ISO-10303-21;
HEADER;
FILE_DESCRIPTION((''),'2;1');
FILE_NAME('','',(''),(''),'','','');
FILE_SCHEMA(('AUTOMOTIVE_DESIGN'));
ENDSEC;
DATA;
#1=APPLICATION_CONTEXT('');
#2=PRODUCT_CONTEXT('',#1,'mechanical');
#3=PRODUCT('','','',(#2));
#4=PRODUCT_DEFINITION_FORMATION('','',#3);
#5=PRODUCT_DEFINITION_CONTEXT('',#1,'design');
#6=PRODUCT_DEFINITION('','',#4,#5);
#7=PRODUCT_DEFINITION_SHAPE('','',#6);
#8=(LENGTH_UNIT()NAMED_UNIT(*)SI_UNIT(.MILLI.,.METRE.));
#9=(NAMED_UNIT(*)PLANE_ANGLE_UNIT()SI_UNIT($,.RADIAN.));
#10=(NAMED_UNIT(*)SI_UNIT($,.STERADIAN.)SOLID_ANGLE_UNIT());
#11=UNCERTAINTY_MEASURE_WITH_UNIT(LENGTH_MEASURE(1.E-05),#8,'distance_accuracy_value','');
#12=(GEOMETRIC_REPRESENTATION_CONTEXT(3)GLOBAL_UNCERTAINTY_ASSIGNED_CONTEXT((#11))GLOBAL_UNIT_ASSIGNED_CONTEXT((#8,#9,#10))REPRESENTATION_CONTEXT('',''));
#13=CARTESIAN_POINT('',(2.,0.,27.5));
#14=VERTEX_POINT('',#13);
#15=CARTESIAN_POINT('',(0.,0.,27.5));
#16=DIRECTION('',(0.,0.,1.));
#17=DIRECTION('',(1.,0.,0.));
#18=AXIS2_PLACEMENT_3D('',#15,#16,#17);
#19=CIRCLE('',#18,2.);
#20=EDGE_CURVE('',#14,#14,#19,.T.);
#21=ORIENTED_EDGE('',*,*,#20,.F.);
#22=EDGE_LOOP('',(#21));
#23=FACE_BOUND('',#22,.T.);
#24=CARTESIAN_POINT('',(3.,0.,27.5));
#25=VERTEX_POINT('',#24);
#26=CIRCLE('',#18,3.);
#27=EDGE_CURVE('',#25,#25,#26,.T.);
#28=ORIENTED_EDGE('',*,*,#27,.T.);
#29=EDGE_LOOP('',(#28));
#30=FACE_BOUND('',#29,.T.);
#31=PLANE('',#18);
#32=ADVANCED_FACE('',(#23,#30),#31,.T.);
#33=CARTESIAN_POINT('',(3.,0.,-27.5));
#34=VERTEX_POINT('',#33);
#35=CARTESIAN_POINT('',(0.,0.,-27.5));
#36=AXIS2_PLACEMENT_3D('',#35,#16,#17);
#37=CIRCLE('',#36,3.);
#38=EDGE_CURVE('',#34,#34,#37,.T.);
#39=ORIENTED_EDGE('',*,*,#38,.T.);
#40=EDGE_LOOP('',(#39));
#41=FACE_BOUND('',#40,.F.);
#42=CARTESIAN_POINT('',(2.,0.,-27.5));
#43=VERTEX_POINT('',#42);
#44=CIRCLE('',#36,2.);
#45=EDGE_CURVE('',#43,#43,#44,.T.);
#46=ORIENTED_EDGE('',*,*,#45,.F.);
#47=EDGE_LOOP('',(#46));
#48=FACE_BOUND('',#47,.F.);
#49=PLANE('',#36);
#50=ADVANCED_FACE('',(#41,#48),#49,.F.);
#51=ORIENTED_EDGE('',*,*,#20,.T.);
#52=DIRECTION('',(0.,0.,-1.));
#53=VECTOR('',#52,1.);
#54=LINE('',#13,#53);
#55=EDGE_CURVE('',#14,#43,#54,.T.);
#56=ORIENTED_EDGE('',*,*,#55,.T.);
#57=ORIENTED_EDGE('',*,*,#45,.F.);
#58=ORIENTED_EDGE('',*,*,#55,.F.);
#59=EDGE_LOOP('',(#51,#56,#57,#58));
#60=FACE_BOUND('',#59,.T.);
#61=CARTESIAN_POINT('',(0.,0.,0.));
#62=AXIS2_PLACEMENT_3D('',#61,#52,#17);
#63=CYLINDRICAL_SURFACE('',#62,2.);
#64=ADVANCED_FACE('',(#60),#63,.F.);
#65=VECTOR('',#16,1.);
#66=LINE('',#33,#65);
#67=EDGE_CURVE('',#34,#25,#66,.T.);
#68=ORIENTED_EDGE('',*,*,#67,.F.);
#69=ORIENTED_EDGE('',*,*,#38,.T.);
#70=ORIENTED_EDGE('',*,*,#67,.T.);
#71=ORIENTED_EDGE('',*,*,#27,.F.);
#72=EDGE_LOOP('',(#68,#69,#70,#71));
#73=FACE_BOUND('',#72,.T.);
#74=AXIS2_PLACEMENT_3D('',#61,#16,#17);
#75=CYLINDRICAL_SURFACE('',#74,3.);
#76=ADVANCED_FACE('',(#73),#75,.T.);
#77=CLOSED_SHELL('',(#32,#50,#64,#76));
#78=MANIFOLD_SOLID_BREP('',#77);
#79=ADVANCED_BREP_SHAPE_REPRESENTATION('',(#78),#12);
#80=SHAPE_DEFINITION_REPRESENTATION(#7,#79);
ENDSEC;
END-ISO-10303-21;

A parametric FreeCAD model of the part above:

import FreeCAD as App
import Part
import Sketcher
Q = App.Units.Quantity

doc = App.newDocument("Part")
body = doc.addObject("PartDesign::Body", "Body")

# Sketch on XY plane
sketch1 = body.newObject("Sketcher::SketchObject", "Sketch")
sketch1.AttachmentSupport = (doc.getObject("XY_Plane"), [""])
sketch1.MapMode = "FlatFace"
sketch1.addGeometry([
    Part.Circle(App.Vector(0, 0, 0), App.Vector(0, 0, 1), 3),
    Part.Circle(App.Vector(0, 0, 0), App.Vector(0, 0, 1), 2),
], False)
sketch1.addConstraint([
    Sketcher.Constraint("Coincident", 0, 3, -1, 1),
    Sketcher.Constraint("Coincident", 1, 3, -1, 1),
    Sketcher.Constraint("Diameter", 0, Q("6 mm")),
    Sketcher.Constraint("Diameter", 1, Q("4 mm")),
])
pad1 = body.newObject("PartDesign::Pad", "Pad")
pad1.Profile = sketch1
pad1.Length = 55
pad1.Midplane = True

doc.recompute()
